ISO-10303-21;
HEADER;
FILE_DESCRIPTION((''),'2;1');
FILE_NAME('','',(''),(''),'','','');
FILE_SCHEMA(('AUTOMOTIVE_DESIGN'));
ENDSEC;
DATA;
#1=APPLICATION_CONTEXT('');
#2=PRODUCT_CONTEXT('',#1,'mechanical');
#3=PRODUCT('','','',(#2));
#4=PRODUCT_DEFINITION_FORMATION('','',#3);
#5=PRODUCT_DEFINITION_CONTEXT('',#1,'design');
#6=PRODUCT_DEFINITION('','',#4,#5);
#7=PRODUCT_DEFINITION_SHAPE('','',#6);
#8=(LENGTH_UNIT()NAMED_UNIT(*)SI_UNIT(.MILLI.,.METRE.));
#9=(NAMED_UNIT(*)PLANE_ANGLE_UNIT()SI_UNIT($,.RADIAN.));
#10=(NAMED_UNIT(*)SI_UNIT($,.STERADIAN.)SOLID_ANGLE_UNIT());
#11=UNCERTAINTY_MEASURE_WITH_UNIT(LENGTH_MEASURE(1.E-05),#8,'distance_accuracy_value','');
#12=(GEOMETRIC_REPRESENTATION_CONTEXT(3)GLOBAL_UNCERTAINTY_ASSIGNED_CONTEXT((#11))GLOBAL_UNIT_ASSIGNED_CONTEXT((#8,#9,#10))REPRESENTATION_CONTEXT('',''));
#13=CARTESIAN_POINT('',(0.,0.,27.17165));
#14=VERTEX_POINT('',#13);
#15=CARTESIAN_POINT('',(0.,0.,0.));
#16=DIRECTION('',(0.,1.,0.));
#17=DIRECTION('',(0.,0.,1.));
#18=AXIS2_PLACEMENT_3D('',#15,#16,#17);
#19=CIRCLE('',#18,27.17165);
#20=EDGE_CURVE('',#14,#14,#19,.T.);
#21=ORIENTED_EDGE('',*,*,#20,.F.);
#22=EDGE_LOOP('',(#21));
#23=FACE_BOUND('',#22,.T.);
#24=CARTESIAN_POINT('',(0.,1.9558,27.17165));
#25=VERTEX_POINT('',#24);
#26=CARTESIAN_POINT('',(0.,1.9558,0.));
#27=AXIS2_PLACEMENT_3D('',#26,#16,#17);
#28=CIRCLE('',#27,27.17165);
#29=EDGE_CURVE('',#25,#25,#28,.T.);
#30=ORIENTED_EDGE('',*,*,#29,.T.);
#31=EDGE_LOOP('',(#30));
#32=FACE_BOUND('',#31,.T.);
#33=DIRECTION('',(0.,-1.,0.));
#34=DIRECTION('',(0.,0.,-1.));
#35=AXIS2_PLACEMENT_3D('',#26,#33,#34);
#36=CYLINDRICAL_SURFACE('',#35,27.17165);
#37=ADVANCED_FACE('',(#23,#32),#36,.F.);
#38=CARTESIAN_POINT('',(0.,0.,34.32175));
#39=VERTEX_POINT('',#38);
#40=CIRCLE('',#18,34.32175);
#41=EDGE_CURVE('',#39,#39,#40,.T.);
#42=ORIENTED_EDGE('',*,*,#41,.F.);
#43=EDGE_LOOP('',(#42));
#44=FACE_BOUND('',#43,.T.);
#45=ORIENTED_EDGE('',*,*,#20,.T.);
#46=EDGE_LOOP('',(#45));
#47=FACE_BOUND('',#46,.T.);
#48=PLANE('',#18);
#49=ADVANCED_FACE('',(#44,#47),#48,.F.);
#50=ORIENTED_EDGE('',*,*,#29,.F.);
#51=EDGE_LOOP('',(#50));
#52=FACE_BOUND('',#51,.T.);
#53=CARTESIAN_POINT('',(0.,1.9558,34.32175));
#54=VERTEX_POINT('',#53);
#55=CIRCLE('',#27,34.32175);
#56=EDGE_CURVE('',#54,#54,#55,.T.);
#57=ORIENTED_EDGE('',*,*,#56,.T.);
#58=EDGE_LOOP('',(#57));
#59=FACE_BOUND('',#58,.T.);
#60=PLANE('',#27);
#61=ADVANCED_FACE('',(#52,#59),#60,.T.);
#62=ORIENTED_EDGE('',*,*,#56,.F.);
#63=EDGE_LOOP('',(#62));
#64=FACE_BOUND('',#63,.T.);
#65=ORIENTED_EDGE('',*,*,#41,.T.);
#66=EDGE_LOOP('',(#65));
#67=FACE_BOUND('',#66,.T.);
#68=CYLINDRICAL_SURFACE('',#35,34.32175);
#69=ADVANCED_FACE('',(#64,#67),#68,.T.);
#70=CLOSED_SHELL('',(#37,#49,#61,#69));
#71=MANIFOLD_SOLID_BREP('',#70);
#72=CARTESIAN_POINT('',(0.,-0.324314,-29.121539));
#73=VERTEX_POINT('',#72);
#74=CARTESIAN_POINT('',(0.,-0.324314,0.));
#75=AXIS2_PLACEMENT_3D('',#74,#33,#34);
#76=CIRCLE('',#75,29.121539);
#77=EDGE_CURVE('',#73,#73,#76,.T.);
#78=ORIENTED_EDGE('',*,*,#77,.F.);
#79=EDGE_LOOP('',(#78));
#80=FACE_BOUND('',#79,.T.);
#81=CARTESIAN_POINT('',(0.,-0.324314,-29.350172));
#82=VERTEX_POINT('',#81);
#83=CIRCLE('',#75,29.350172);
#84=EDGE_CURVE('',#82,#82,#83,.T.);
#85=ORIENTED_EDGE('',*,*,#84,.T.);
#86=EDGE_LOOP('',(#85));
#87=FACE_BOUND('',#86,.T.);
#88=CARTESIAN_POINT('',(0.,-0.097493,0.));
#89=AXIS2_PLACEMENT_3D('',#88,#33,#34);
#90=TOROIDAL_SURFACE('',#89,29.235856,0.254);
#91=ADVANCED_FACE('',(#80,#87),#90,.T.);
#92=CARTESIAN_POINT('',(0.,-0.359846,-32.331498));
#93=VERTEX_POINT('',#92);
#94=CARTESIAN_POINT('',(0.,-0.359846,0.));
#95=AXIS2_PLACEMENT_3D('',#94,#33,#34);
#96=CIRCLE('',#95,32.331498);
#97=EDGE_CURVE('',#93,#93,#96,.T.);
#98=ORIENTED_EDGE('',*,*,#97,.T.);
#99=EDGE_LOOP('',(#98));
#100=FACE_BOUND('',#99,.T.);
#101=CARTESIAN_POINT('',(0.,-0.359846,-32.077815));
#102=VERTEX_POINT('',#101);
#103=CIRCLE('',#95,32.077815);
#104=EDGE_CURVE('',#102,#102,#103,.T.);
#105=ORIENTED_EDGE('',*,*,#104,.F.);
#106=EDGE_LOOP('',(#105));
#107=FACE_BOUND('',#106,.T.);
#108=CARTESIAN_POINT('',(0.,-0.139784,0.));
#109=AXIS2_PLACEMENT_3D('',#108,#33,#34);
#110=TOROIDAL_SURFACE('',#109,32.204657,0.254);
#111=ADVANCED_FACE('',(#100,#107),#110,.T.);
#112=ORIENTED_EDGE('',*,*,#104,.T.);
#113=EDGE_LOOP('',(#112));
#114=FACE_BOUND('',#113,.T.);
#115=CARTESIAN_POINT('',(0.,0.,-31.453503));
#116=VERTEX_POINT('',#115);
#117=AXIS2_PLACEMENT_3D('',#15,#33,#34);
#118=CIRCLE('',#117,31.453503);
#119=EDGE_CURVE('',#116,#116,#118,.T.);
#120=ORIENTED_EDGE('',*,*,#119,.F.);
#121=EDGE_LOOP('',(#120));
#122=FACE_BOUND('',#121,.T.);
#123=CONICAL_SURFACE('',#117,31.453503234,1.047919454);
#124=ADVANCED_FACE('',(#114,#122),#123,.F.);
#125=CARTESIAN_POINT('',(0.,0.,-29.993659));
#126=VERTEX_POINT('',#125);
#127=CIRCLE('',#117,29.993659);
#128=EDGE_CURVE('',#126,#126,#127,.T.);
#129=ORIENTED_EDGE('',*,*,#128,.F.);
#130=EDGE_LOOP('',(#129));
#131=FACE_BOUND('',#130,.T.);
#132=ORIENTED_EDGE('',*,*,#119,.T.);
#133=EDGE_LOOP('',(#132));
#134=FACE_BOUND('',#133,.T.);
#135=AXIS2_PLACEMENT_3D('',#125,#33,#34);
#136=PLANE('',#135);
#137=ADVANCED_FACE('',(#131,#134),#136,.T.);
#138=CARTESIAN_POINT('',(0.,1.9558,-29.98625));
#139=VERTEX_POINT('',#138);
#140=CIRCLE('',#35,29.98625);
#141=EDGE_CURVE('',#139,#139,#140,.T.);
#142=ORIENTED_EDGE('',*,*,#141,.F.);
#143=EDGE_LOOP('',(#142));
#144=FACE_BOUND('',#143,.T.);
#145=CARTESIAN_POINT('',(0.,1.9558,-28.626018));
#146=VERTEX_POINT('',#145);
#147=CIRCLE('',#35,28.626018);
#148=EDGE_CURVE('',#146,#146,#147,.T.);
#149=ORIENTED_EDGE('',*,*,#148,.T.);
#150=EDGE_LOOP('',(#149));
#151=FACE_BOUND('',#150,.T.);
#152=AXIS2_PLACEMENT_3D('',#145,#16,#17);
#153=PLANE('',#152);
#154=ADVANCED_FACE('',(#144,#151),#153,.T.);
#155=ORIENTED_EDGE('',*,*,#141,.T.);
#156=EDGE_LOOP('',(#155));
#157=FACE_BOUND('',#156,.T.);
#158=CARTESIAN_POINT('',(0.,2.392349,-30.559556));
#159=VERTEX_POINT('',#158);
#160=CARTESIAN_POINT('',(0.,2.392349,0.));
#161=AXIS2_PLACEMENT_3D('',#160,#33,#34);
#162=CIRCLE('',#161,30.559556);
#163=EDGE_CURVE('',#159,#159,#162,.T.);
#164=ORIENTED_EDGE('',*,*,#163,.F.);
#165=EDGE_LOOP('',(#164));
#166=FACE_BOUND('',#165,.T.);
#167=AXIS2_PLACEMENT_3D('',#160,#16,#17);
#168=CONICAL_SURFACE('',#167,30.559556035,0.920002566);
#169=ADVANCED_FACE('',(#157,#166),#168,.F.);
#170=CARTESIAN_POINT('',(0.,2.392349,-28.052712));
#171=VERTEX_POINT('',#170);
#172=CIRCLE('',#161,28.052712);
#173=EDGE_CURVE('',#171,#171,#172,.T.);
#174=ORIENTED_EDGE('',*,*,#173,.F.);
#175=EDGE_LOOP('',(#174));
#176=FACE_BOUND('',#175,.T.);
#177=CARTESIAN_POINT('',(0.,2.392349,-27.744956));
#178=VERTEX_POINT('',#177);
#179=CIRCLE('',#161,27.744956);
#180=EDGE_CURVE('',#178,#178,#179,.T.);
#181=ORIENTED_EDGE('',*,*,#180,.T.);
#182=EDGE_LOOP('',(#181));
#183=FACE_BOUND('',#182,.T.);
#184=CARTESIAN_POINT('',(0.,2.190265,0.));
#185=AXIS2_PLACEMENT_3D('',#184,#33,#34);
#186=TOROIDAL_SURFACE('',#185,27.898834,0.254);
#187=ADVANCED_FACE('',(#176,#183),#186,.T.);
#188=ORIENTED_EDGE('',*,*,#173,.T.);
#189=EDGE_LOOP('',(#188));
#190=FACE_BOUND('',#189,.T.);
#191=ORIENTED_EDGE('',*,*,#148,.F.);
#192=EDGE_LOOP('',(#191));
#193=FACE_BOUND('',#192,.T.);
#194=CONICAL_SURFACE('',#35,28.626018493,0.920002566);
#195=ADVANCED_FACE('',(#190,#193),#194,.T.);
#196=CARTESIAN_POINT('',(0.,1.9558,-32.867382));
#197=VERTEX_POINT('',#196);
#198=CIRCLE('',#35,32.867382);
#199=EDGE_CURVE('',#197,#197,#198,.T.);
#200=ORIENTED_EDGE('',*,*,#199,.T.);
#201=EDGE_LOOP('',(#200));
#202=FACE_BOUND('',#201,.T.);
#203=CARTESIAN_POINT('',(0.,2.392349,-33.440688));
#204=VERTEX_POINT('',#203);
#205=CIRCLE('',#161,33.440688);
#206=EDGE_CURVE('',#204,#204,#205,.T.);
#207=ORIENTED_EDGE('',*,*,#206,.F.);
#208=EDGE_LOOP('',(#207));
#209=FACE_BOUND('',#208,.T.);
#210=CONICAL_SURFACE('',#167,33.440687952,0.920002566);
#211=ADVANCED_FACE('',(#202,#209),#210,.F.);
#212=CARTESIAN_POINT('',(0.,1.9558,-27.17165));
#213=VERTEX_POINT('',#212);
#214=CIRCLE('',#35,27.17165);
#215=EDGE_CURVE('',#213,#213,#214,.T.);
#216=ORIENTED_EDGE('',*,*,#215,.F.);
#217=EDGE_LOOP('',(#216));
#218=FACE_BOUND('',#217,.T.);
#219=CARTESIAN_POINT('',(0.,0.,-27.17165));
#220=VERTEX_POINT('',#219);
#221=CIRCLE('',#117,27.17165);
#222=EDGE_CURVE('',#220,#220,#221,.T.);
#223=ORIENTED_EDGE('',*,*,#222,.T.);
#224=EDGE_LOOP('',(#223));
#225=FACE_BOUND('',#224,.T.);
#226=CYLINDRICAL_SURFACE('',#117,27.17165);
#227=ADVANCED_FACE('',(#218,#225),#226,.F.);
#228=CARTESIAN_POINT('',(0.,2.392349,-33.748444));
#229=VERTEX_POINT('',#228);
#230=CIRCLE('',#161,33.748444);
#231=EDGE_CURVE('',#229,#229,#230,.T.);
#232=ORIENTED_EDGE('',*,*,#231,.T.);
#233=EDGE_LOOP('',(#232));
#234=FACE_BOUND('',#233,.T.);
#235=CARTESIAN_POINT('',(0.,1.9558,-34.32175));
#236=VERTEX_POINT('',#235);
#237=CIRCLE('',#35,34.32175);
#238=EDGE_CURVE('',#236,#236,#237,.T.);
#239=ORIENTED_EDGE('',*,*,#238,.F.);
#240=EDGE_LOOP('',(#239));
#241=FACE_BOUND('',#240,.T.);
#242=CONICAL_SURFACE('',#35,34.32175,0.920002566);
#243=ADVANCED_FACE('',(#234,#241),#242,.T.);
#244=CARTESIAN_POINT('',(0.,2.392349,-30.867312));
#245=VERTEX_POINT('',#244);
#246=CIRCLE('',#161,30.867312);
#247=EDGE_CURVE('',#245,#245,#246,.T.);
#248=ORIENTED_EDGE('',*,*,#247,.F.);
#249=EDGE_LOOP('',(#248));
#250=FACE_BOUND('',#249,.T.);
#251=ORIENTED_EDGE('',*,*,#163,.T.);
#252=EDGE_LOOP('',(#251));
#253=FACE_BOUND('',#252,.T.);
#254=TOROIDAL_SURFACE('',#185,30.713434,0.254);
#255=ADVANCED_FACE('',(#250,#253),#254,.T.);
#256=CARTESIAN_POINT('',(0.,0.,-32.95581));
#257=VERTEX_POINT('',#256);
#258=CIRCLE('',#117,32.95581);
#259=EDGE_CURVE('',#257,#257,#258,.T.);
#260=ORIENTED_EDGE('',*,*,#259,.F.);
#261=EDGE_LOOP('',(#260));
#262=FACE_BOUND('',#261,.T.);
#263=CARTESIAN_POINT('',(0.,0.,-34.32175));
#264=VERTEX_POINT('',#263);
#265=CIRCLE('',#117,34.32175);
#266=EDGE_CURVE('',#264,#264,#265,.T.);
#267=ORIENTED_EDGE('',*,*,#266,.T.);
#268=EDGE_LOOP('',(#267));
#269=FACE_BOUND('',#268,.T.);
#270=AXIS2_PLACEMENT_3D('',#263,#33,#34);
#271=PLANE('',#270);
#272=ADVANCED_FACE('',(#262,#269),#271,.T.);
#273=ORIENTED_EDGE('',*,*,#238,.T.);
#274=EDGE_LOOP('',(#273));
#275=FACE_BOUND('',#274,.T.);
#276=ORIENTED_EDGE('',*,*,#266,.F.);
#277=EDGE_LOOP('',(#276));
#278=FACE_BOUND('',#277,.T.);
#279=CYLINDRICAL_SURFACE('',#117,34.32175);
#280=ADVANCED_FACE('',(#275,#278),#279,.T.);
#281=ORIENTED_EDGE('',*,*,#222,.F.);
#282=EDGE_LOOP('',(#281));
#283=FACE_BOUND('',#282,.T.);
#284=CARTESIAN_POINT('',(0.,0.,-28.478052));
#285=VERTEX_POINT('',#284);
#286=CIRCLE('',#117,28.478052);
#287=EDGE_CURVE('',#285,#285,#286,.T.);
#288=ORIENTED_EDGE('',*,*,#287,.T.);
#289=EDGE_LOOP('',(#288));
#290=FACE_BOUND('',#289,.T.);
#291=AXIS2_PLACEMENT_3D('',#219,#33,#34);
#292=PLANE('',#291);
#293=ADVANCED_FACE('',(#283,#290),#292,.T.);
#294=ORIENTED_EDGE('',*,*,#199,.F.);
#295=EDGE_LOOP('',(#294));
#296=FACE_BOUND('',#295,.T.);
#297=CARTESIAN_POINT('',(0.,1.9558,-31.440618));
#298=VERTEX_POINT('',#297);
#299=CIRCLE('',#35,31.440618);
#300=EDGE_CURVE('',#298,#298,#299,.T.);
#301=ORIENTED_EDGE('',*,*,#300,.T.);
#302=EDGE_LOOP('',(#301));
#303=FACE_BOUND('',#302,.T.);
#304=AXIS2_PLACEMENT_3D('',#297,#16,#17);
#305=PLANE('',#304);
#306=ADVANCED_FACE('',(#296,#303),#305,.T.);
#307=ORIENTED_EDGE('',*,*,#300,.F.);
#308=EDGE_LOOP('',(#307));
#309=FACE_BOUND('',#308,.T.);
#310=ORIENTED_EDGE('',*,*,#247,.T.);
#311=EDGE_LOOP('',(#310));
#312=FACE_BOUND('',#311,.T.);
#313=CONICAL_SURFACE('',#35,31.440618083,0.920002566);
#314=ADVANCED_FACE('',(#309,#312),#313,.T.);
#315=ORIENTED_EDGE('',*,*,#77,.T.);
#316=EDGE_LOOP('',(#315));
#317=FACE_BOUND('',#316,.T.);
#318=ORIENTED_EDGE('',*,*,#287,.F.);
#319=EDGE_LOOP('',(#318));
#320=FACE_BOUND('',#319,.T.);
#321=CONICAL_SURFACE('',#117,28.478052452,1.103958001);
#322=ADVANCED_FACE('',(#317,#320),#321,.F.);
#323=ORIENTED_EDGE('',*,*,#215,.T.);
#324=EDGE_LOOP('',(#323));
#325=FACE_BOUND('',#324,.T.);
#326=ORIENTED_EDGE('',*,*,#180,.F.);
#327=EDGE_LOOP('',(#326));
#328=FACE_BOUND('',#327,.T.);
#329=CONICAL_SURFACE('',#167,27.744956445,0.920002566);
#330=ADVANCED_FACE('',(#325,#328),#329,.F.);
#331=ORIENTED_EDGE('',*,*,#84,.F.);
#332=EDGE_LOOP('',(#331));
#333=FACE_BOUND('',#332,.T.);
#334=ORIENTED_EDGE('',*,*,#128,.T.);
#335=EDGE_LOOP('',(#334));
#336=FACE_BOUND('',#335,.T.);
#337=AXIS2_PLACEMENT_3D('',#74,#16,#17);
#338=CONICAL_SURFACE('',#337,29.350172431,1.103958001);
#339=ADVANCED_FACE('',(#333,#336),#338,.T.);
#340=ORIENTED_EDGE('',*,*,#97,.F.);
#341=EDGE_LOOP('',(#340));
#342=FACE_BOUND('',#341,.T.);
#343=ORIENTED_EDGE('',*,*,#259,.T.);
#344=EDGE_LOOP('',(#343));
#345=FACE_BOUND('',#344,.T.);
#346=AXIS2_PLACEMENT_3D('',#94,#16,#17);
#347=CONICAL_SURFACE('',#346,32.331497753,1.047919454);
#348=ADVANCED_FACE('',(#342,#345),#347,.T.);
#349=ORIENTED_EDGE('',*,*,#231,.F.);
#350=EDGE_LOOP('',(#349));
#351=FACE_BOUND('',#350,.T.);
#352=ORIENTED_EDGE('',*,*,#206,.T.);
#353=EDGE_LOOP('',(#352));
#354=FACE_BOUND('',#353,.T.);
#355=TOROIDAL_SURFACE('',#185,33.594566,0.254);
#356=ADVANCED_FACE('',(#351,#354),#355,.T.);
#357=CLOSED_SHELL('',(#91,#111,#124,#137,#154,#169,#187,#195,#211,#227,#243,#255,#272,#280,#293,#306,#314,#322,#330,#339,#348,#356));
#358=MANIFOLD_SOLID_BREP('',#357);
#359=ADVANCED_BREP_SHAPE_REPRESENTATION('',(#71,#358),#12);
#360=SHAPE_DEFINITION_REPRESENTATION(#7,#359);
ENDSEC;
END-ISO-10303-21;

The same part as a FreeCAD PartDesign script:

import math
import FreeCAD as App
import Part
import Sketcher
Q = App.Units.Quantity

doc = App.newDocument("Part")
body = doc.addObject("PartDesign::Body", "Body")

# Sketch on XZ plane
sketch1 = body.newObject("Sketcher::SketchObject", "Sketch")
sketch1.AttachmentSupport = (doc.getObject("XZ_Plane"), [""])
sketch1.MapMode = "FlatFace"
sketch1.addGeometry([
    Part.Circle(App.Vector(0, 0, 0), App.Vector(0, 0, 1), 34),
    Part.Circle(App.Vector(0, 0, 0), App.Vector(0, 0, 1), 27),
], False)
sketch1.addConstraint([
    Sketcher.Constraint("Coincident", 0, 3, -1, 1),
    Sketcher.Constraint("Coincident", 1, 3, -1, 1),
    Sketcher.Constraint("Diameter", 0, Q("2.7025 in")),
    Sketcher.Constraint("Diameter", 1, Q("2.1395 in")),
])
pad1 = body.newObject("PartDesign::Pad", "Pad")
pad1.Profile = sketch1
pad1.Length = Q("0.077 in")
pad1.Reversed = True
body2 = doc.addObject("PartDesign::Body", "Body001")

# Sketch on YZ plane
sketch2 = body2.newObject("Sketcher::SketchObject", "Sketch001")
sketch2.AttachmentSupport = (doc.getObject("YZ_Plane001"), [""])
sketch2.MapMode = "FlatFace"
sketch2.addGeometry([
    Part.LineSegment(App.Vector(0, -34.32, 0), App.Vector(1.96, -34.32, 0)),  # 0
    Part.LineSegment(App.Vector(1.96, -34.32, 0), App.Vector(2.39, -33.75, 0)),  # 1
    Part.ArcOfCircle(Part.Circle(App.Vector(2.19, -33.59, 0), App.Vector(0, 0, 1), 0.25), math.radians(-37), math.radians(37)),  # 2
    Part.LineSegment(App.Vector(2.39, -33.44, 0), App.Vector(1.96, -32.87, 0)),  # 3
    Part.LineSegment(App.Vector(1.96, -32.87, 0), App.Vector(1.96, -31.44, 0)),  # 4
    Part.LineSegment(App.Vector(1.96, -31.44, 0), App.Vector(2.39, -30.87, 0)),  # 5
    Part.ArcOfCircle(Part.Circle(App.Vector(2.19, -30.71, 0), App.Vector(0, 0, 1), 0.25), math.radians(-37), math.radians(37)),  # 6
    Part.LineSegment(App.Vector(2.39, -30.56, 0), App.Vector(1.96, -29.99, 0)),  # 7
    Part.LineSegment(App.Vector(1.96, -29.99, 0), App.Vector(1.96, -28.63, 0)),  # 8
    Part.LineSegment(App.Vector(1.96, -28.63, 0), App.Vector(2.39, -28.05, 0)),  # 9
    Part.ArcOfCircle(Part.Circle(App.Vector(2.19, -27.9, 0), App.Vector(0, 0, 1), 0.25), math.radians(-37), math.radians(37)),  # 10
    Part.LineSegment(App.Vector(2.39, -27.74, 0), App.Vector(1.96, -27.17, 0)),  # 11
    Part.LineSegment(App.Vector(1.96, -27.17, 0), App.Vector(0, -27.17, 0)),  # 12
    Part.LineSegment(App.Vector(0, -27.17, 0), App.Vector(0, -28.48, 0)),  # 13
    Part.LineSegment(App.Vector(0, -28.48, 0), App.Vector(-0.32, -29.12, 0)),  # 14
    Part.ArcOfCircle(Part.Circle(App.Vector(-0.1, -29.24, 0), App.Vector(0, 0, 1), 0.25), math.radians(153), math.radians(207)),  # 15
    Part.LineSegment(App.Vector(-0.32, -29.35, 0), App.Vector(0, -29.99, 0)),  # 16
    Part.LineSegment(App.Vector(0, -29.99, 0), App.Vector(0, -31.45, 0)),  # 17
    Part.LineSegment(App.Vector(0, -31.45, 0), App.Vector(-0.36, -32.08, 0)),  # 18
    Part.ArcOfCircle(Part.Circle(App.Vector(-0.14, -32.2, 0), App.Vector(0, 0, 1), 0.25), math.radians(150), math.radians(210)),  # 19
    Part.LineSegment(App.Vector(-0.36, -32.33, 0), App.Vector(0, -32.96, 0)),  # 20
    Part.LineSegment(App.Vector(0, -32.96, 0), App.Vector(0, -34.32, 0)),  # 21
], False)
sketch2.addConstraint([
    Sketcher.Constraint("Coincident", 0, 2, 1, 1),
    Sketcher.Constraint("Tangent", 1, 2, 2, 1),
    Sketcher.Constraint("Tangent", 2, 2, 3, 1),
    Sketcher.Constraint("Coincident", 3, 2, 4, 1),
    Sketcher.Constraint("Coincident", 4, 2, 5, 1),
    Sketcher.Constraint("Tangent", 5, 2, 6, 1),
    Sketcher.Constraint("Tangent", 6, 2, 7, 1),
    Sketcher.Constraint("Coincident", 7, 2, 8, 1),
    Sketcher.Constraint("Coincident", 8, 2, 9, 1),
    Sketcher.Constraint("Tangent", 9, 2, 10, 1),
    Sketcher.Constraint("Tangent", 10, 2, 11, 1),
    Sketcher.Constraint("Coincident", 11, 2, 12, 1),
    Sketcher.Constraint("Coincident", 12, 2, 13, 1),
    Sketcher.Constraint("Coincident", 13, 2, 14, 1),
    Sketcher.Constraint("Tangent", 14, 2, 15, 1),
    Sketcher.Constraint("Tangent", 15, 2, 16, 1),
    Sketcher.Constraint("Coincident", 16, 2, 17, 1),
    Sketcher.Constraint("Coincident", 17, 2, 18, 1),
    Sketcher.Constraint("Tangent", 18, 2, 19, 1),
    Sketcher.Constraint("Tangent", 19, 2, 20, 1),
    Sketcher.Constraint("Coincident", 20, 2, 21, 1),
    Sketcher.Constraint("Coincident", 21, 2, 0, 1),
    Sketcher.Constraint("Horizontal", 0),
    Sketcher.Constraint("Vertical", 4),
    Sketcher.Constraint("Vertical", 8),
    Sketcher.Constraint("Horizontal", 12),
    Sketcher.Constraint("Vertical", 13),
    Sketcher.Constraint("Vertical", 17),
    Sketcher.Constraint("Vertical", 21),
    Sketcher.Constraint("Equal", 2, 6),
    Sketcher.Constraint("Equal", 6, 10),
    Sketcher.Constraint("Equal", 10, 15),
    Sketcher.Constraint("Equal", 15, 19),
    Sketcher.Constraint("PointOnObject", 12, 2, -2),
    Sketcher.Constraint("PointOnObject", 16, 2, -2),
    Sketcher.Constraint("PointOnObject", 20, 2, -2),
    Sketcher.Constraint("Parallel", 1, 5),
    Sketcher.Constraint("Parallel", 3, 7),
    Sketcher.Constraint("Parallel", 5, 9),
    Sketcher.Constraint("Parallel", 7, 11),
    Sketcher.Constraint("Vertical", 2, 3, 6, 3),
    Sketcher.Constraint("Vertical", 6, 3, 10, 3),
    Sketcher.Constraint("Vertical", 1, 2, 2, 2),
    Sketcher.Constraint("Vertical", 0, 2, 3, 2),
    Sketcher.Constraint("Vertical", 4, 2, 7, 2),
    Sketcher.Constraint("Vertical", 8, 2, 11, 2),
    Sketcher.Constraint("Vertical", 14, 2, 15, 2),
    Sketcher.Constraint("Vertical", 18, 2, 19, 2),
    Sketcher.Constraint("Equal", 11, 14),
    Sketcher.Constraint("Equal", 16, 18),
    Sketcher.Constraint("Radius", 2, Q("0.01 in")),
    Sketcher.Constraint("DistanceX", 0, 1, 0, 2, Q("0.077 in")),
    Sketcher.Constraint("DistanceY", 19, 3, -1, 1, Q("1.2678999 in")),
    Sketcher.Constraint("DistanceY", 8, 1, 8, 2, Q("1.360231 mm")),
    Sketcher.Constraint("DistanceY", 21, 2, 21, 1, Q("1.36594 mm")),
    Sketcher.Constraint("DistanceY", 6, 3, 10, 3, Q("2.8146 mm")),
    Sketcher.Constraint("DistanceY", 19, 3, 15, 3, Q("2.968801 mm")),
    Sketcher.Constraint("DistanceY", 4, 1, 4, 2, Q("1.426763 mm")),
    Sketcher.Constraint("DistanceY", 13, 2, 13, 1, Q("1.306402 mm")),
    Sketcher.Constraint("DistanceY", 0, 2, -1, 1, Q("34.32175 mm")),
    Sketcher.Constraint("DistanceX", -1, 1, 1, 2, Q("2.392349 mm")),
])
revolution = body2.newObject("PartDesign::Revolution", "Revolution")
revolution.Profile = sketch2
revolution.ReferenceAxis = (sketch2, ["H_Axis"])
revolution.Angle = 360

doc.recompute()
